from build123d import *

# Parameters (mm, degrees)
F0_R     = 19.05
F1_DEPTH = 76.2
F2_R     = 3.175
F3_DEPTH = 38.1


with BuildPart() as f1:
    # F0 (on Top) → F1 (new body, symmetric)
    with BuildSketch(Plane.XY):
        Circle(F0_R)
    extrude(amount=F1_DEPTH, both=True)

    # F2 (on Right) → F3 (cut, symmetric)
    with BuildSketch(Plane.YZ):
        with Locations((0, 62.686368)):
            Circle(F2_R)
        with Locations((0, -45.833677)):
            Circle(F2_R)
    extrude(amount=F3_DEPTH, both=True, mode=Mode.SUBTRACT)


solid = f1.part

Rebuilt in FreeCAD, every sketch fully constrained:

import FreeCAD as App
import Part
import Sketcher

V = App.Vector
Q = App.Units.Quantity

doc = App.newDocument("Part")
body = doc.addObject("PartDesign::Body", "Body")

# Sketch on XY plane
sketch1 = body.newObject("Sketcher::SketchObject", "Sketch")
sketch1.AttachmentSupport = (doc.getObject("XY_Plane"), [""])
sketch1.MapMode = "FlatFace"
sketch1.addGeometry(Part.Circle(V(0, 0, 0), V(0, 0, 1), 19), False)
sketch1.addConstraint(Sketcher.Constraint("Coincident", 0, 3, -1, 1))
sketch1.addConstraint(Sketcher.Constraint("Diameter", 0, Q("1.5 in")))
pad1 = body.newObject("PartDesign::Pad", "Pad")
pad1.Profile = sketch1
pad1.Length = Q("6 in")
pad1.Midplane = True

# Sketch on YZ plane
sketch2 = body.newObject("Sketcher::SketchObject", "Sketch001")
sketch2.AttachmentSupport = (doc.getObject("YZ_Plane"), [""])
sketch2.MapMode = "FlatFace"
sketch2.addGeometry(Part.Circle(V(0, 62.7, 0), V(0, 0, 1), 3.2), False)
sketch2.addGeometry(Part.Circle(V(0, -45.8, 0), V(0, 0, 1), 3.2), False)
sketch2.addConstraint(Sketcher.Constraint("Equal", 0, 1))
sketch2.addConstraint(Sketcher.Constraint("PointOnObject", 0, 3, -2))
sketch2.addConstraint(Sketcher.Constraint("PointOnObject", 1, 3, -2))
sketch2.addConstraint(Sketcher.Constraint("Diameter", 0, Q("0.25 in")))
sketch2.addConstraint(Sketcher.Constraint("DistanceY", -1, 1, 0, 3, 62.686368))
sketch2.addConstraint(Sketcher.Constraint("DistanceY", 1, 3, -1, 1, 45.833677))
pocket1 = body.newObject("PartDesign::Pocket", "Pocket")
pocket1.Profile = sketch2
pocket1.Length = Q("3 in")
pocket1.Midplane = True

doc.recompute()
